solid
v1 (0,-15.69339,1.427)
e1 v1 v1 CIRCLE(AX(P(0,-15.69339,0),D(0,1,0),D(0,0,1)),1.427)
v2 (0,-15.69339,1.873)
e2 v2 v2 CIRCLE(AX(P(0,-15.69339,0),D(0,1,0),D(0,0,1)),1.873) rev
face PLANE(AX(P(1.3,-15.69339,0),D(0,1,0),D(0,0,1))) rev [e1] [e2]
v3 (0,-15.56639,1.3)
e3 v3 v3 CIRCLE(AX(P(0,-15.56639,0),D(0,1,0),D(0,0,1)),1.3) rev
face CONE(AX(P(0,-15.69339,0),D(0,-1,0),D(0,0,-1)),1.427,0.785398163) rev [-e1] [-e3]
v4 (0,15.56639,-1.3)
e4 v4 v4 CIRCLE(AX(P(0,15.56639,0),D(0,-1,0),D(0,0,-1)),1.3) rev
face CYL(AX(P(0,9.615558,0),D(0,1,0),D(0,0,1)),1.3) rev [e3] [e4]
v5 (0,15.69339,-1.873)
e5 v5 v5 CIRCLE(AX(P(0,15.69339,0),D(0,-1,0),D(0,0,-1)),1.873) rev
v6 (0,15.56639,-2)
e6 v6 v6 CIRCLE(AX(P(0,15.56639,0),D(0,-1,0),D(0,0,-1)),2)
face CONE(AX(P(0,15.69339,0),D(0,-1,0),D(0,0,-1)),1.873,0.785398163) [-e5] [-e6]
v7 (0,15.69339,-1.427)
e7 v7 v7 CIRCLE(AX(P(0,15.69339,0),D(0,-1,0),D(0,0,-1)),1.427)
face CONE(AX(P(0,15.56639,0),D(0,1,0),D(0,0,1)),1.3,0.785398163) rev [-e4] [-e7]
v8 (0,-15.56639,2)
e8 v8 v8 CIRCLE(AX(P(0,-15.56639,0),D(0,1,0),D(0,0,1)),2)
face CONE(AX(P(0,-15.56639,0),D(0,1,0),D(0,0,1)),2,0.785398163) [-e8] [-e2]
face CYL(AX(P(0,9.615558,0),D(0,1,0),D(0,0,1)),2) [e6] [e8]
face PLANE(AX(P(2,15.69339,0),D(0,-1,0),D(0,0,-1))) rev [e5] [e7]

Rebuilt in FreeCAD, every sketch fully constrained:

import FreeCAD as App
import Part
import Sketcher
from FreeCAD import Vector


def edges_at(feature, points):
    """Names of the edges that pass closest to the given points."""
    edges = feature.Shape.Edges
    near = lambda p: min(range(len(edges)), key=lambda i: edges[i].distToShape(Part.Vertex(*p))[0])
    return sorted({f"Edge{near(p) + 1}" for p in points})


def add_polygon(sketch, points):
    """Adds a closed chain of lines whose ends are joined by coincident constraints."""
    first, n = sketch.GeometryCount, len(points)
    for a, b in zip(points, points[1:] + points[:1]):
        sketch.addGeometry(Part.LineSegment(App.Vector(*a, 0), App.Vector(*b, 0)), False)
    for i in range(n):
        sketch.addConstraint(Sketcher.Constraint("Coincident", first + i, 2, first + (i + 1) % n, 1))

doc = App.newDocument("Part")
params = doc.addObject("Spreadsheet::Sheet", "Params")
for row, (alias, value) in enumerate([
    ("sketch1_width", "0.7 mm"),
    ("revolution_angle", "360 deg"),
    ("chamfer_size", "0.127 mm"),
], start=1):
    params.set(f"A{row}", alias)
    params.set(f"B{row}", "=" + value)
    params.setAlias(f"B{row}", alias)

body = doc.addObject("PartDesign::Body", "Body")

# Sketch on XY plane
sketch1 = body.newObject("Sketcher::SketchObject", "Sketch")
sketch1.AttachmentSupport = (doc.getObject("XY_Plane"), [""])
sketch1.MapMode = "FlatFace"
add_polygon(sketch1, [(1.3, 15.7), (1.3, -15.7), (2, -15.7), (2, 15.7)])  # lines 0-3
sketch1.addConstraint([
    Sketcher.Constraint("Vertical", 0),
    Sketcher.Constraint("Horizontal", 1),
    Sketcher.Constraint("Vertical", 2),
    Sketcher.Constraint("Horizontal", 3),
    Sketcher.Constraint("DistanceX", 1, 1, 1, 2, 0.7),
    Sketcher.Constraint("DistanceX", -1, 1, 1, 2, 2.0),
    Sketcher.Constraint("DistanceY", 0, 2, 0, 1, 31.38678),
    Sketcher.Constraint("DistanceY", 0, 2, -1, 1, 15.69339),
])
sketch1.setExpression("Constraints[8]", "Params.sketch1_width")
revolution = body.newObject("PartDesign::Revolution", "Revolution")
revolution.Profile = sketch1
revolution.ReferenceAxis = (sketch1, ["V_Axis"])
revolution.setExpression("Angle", "Params.revolution_angle")
doc.recompute()

chamfer = body.newObject("PartDesign::Chamfer", "Chamfer")
chamfer.Base = (revolution, edges_at(revolution, [
    (-1.3, 15.693, 0),
    (-2, 15.693, 0),
    (-2, -15.693, 0),
    (-1.3, -15.693, 0),
]))
chamfer.setExpression("Size", "Params.chamfer_size")

doc.recompute()
